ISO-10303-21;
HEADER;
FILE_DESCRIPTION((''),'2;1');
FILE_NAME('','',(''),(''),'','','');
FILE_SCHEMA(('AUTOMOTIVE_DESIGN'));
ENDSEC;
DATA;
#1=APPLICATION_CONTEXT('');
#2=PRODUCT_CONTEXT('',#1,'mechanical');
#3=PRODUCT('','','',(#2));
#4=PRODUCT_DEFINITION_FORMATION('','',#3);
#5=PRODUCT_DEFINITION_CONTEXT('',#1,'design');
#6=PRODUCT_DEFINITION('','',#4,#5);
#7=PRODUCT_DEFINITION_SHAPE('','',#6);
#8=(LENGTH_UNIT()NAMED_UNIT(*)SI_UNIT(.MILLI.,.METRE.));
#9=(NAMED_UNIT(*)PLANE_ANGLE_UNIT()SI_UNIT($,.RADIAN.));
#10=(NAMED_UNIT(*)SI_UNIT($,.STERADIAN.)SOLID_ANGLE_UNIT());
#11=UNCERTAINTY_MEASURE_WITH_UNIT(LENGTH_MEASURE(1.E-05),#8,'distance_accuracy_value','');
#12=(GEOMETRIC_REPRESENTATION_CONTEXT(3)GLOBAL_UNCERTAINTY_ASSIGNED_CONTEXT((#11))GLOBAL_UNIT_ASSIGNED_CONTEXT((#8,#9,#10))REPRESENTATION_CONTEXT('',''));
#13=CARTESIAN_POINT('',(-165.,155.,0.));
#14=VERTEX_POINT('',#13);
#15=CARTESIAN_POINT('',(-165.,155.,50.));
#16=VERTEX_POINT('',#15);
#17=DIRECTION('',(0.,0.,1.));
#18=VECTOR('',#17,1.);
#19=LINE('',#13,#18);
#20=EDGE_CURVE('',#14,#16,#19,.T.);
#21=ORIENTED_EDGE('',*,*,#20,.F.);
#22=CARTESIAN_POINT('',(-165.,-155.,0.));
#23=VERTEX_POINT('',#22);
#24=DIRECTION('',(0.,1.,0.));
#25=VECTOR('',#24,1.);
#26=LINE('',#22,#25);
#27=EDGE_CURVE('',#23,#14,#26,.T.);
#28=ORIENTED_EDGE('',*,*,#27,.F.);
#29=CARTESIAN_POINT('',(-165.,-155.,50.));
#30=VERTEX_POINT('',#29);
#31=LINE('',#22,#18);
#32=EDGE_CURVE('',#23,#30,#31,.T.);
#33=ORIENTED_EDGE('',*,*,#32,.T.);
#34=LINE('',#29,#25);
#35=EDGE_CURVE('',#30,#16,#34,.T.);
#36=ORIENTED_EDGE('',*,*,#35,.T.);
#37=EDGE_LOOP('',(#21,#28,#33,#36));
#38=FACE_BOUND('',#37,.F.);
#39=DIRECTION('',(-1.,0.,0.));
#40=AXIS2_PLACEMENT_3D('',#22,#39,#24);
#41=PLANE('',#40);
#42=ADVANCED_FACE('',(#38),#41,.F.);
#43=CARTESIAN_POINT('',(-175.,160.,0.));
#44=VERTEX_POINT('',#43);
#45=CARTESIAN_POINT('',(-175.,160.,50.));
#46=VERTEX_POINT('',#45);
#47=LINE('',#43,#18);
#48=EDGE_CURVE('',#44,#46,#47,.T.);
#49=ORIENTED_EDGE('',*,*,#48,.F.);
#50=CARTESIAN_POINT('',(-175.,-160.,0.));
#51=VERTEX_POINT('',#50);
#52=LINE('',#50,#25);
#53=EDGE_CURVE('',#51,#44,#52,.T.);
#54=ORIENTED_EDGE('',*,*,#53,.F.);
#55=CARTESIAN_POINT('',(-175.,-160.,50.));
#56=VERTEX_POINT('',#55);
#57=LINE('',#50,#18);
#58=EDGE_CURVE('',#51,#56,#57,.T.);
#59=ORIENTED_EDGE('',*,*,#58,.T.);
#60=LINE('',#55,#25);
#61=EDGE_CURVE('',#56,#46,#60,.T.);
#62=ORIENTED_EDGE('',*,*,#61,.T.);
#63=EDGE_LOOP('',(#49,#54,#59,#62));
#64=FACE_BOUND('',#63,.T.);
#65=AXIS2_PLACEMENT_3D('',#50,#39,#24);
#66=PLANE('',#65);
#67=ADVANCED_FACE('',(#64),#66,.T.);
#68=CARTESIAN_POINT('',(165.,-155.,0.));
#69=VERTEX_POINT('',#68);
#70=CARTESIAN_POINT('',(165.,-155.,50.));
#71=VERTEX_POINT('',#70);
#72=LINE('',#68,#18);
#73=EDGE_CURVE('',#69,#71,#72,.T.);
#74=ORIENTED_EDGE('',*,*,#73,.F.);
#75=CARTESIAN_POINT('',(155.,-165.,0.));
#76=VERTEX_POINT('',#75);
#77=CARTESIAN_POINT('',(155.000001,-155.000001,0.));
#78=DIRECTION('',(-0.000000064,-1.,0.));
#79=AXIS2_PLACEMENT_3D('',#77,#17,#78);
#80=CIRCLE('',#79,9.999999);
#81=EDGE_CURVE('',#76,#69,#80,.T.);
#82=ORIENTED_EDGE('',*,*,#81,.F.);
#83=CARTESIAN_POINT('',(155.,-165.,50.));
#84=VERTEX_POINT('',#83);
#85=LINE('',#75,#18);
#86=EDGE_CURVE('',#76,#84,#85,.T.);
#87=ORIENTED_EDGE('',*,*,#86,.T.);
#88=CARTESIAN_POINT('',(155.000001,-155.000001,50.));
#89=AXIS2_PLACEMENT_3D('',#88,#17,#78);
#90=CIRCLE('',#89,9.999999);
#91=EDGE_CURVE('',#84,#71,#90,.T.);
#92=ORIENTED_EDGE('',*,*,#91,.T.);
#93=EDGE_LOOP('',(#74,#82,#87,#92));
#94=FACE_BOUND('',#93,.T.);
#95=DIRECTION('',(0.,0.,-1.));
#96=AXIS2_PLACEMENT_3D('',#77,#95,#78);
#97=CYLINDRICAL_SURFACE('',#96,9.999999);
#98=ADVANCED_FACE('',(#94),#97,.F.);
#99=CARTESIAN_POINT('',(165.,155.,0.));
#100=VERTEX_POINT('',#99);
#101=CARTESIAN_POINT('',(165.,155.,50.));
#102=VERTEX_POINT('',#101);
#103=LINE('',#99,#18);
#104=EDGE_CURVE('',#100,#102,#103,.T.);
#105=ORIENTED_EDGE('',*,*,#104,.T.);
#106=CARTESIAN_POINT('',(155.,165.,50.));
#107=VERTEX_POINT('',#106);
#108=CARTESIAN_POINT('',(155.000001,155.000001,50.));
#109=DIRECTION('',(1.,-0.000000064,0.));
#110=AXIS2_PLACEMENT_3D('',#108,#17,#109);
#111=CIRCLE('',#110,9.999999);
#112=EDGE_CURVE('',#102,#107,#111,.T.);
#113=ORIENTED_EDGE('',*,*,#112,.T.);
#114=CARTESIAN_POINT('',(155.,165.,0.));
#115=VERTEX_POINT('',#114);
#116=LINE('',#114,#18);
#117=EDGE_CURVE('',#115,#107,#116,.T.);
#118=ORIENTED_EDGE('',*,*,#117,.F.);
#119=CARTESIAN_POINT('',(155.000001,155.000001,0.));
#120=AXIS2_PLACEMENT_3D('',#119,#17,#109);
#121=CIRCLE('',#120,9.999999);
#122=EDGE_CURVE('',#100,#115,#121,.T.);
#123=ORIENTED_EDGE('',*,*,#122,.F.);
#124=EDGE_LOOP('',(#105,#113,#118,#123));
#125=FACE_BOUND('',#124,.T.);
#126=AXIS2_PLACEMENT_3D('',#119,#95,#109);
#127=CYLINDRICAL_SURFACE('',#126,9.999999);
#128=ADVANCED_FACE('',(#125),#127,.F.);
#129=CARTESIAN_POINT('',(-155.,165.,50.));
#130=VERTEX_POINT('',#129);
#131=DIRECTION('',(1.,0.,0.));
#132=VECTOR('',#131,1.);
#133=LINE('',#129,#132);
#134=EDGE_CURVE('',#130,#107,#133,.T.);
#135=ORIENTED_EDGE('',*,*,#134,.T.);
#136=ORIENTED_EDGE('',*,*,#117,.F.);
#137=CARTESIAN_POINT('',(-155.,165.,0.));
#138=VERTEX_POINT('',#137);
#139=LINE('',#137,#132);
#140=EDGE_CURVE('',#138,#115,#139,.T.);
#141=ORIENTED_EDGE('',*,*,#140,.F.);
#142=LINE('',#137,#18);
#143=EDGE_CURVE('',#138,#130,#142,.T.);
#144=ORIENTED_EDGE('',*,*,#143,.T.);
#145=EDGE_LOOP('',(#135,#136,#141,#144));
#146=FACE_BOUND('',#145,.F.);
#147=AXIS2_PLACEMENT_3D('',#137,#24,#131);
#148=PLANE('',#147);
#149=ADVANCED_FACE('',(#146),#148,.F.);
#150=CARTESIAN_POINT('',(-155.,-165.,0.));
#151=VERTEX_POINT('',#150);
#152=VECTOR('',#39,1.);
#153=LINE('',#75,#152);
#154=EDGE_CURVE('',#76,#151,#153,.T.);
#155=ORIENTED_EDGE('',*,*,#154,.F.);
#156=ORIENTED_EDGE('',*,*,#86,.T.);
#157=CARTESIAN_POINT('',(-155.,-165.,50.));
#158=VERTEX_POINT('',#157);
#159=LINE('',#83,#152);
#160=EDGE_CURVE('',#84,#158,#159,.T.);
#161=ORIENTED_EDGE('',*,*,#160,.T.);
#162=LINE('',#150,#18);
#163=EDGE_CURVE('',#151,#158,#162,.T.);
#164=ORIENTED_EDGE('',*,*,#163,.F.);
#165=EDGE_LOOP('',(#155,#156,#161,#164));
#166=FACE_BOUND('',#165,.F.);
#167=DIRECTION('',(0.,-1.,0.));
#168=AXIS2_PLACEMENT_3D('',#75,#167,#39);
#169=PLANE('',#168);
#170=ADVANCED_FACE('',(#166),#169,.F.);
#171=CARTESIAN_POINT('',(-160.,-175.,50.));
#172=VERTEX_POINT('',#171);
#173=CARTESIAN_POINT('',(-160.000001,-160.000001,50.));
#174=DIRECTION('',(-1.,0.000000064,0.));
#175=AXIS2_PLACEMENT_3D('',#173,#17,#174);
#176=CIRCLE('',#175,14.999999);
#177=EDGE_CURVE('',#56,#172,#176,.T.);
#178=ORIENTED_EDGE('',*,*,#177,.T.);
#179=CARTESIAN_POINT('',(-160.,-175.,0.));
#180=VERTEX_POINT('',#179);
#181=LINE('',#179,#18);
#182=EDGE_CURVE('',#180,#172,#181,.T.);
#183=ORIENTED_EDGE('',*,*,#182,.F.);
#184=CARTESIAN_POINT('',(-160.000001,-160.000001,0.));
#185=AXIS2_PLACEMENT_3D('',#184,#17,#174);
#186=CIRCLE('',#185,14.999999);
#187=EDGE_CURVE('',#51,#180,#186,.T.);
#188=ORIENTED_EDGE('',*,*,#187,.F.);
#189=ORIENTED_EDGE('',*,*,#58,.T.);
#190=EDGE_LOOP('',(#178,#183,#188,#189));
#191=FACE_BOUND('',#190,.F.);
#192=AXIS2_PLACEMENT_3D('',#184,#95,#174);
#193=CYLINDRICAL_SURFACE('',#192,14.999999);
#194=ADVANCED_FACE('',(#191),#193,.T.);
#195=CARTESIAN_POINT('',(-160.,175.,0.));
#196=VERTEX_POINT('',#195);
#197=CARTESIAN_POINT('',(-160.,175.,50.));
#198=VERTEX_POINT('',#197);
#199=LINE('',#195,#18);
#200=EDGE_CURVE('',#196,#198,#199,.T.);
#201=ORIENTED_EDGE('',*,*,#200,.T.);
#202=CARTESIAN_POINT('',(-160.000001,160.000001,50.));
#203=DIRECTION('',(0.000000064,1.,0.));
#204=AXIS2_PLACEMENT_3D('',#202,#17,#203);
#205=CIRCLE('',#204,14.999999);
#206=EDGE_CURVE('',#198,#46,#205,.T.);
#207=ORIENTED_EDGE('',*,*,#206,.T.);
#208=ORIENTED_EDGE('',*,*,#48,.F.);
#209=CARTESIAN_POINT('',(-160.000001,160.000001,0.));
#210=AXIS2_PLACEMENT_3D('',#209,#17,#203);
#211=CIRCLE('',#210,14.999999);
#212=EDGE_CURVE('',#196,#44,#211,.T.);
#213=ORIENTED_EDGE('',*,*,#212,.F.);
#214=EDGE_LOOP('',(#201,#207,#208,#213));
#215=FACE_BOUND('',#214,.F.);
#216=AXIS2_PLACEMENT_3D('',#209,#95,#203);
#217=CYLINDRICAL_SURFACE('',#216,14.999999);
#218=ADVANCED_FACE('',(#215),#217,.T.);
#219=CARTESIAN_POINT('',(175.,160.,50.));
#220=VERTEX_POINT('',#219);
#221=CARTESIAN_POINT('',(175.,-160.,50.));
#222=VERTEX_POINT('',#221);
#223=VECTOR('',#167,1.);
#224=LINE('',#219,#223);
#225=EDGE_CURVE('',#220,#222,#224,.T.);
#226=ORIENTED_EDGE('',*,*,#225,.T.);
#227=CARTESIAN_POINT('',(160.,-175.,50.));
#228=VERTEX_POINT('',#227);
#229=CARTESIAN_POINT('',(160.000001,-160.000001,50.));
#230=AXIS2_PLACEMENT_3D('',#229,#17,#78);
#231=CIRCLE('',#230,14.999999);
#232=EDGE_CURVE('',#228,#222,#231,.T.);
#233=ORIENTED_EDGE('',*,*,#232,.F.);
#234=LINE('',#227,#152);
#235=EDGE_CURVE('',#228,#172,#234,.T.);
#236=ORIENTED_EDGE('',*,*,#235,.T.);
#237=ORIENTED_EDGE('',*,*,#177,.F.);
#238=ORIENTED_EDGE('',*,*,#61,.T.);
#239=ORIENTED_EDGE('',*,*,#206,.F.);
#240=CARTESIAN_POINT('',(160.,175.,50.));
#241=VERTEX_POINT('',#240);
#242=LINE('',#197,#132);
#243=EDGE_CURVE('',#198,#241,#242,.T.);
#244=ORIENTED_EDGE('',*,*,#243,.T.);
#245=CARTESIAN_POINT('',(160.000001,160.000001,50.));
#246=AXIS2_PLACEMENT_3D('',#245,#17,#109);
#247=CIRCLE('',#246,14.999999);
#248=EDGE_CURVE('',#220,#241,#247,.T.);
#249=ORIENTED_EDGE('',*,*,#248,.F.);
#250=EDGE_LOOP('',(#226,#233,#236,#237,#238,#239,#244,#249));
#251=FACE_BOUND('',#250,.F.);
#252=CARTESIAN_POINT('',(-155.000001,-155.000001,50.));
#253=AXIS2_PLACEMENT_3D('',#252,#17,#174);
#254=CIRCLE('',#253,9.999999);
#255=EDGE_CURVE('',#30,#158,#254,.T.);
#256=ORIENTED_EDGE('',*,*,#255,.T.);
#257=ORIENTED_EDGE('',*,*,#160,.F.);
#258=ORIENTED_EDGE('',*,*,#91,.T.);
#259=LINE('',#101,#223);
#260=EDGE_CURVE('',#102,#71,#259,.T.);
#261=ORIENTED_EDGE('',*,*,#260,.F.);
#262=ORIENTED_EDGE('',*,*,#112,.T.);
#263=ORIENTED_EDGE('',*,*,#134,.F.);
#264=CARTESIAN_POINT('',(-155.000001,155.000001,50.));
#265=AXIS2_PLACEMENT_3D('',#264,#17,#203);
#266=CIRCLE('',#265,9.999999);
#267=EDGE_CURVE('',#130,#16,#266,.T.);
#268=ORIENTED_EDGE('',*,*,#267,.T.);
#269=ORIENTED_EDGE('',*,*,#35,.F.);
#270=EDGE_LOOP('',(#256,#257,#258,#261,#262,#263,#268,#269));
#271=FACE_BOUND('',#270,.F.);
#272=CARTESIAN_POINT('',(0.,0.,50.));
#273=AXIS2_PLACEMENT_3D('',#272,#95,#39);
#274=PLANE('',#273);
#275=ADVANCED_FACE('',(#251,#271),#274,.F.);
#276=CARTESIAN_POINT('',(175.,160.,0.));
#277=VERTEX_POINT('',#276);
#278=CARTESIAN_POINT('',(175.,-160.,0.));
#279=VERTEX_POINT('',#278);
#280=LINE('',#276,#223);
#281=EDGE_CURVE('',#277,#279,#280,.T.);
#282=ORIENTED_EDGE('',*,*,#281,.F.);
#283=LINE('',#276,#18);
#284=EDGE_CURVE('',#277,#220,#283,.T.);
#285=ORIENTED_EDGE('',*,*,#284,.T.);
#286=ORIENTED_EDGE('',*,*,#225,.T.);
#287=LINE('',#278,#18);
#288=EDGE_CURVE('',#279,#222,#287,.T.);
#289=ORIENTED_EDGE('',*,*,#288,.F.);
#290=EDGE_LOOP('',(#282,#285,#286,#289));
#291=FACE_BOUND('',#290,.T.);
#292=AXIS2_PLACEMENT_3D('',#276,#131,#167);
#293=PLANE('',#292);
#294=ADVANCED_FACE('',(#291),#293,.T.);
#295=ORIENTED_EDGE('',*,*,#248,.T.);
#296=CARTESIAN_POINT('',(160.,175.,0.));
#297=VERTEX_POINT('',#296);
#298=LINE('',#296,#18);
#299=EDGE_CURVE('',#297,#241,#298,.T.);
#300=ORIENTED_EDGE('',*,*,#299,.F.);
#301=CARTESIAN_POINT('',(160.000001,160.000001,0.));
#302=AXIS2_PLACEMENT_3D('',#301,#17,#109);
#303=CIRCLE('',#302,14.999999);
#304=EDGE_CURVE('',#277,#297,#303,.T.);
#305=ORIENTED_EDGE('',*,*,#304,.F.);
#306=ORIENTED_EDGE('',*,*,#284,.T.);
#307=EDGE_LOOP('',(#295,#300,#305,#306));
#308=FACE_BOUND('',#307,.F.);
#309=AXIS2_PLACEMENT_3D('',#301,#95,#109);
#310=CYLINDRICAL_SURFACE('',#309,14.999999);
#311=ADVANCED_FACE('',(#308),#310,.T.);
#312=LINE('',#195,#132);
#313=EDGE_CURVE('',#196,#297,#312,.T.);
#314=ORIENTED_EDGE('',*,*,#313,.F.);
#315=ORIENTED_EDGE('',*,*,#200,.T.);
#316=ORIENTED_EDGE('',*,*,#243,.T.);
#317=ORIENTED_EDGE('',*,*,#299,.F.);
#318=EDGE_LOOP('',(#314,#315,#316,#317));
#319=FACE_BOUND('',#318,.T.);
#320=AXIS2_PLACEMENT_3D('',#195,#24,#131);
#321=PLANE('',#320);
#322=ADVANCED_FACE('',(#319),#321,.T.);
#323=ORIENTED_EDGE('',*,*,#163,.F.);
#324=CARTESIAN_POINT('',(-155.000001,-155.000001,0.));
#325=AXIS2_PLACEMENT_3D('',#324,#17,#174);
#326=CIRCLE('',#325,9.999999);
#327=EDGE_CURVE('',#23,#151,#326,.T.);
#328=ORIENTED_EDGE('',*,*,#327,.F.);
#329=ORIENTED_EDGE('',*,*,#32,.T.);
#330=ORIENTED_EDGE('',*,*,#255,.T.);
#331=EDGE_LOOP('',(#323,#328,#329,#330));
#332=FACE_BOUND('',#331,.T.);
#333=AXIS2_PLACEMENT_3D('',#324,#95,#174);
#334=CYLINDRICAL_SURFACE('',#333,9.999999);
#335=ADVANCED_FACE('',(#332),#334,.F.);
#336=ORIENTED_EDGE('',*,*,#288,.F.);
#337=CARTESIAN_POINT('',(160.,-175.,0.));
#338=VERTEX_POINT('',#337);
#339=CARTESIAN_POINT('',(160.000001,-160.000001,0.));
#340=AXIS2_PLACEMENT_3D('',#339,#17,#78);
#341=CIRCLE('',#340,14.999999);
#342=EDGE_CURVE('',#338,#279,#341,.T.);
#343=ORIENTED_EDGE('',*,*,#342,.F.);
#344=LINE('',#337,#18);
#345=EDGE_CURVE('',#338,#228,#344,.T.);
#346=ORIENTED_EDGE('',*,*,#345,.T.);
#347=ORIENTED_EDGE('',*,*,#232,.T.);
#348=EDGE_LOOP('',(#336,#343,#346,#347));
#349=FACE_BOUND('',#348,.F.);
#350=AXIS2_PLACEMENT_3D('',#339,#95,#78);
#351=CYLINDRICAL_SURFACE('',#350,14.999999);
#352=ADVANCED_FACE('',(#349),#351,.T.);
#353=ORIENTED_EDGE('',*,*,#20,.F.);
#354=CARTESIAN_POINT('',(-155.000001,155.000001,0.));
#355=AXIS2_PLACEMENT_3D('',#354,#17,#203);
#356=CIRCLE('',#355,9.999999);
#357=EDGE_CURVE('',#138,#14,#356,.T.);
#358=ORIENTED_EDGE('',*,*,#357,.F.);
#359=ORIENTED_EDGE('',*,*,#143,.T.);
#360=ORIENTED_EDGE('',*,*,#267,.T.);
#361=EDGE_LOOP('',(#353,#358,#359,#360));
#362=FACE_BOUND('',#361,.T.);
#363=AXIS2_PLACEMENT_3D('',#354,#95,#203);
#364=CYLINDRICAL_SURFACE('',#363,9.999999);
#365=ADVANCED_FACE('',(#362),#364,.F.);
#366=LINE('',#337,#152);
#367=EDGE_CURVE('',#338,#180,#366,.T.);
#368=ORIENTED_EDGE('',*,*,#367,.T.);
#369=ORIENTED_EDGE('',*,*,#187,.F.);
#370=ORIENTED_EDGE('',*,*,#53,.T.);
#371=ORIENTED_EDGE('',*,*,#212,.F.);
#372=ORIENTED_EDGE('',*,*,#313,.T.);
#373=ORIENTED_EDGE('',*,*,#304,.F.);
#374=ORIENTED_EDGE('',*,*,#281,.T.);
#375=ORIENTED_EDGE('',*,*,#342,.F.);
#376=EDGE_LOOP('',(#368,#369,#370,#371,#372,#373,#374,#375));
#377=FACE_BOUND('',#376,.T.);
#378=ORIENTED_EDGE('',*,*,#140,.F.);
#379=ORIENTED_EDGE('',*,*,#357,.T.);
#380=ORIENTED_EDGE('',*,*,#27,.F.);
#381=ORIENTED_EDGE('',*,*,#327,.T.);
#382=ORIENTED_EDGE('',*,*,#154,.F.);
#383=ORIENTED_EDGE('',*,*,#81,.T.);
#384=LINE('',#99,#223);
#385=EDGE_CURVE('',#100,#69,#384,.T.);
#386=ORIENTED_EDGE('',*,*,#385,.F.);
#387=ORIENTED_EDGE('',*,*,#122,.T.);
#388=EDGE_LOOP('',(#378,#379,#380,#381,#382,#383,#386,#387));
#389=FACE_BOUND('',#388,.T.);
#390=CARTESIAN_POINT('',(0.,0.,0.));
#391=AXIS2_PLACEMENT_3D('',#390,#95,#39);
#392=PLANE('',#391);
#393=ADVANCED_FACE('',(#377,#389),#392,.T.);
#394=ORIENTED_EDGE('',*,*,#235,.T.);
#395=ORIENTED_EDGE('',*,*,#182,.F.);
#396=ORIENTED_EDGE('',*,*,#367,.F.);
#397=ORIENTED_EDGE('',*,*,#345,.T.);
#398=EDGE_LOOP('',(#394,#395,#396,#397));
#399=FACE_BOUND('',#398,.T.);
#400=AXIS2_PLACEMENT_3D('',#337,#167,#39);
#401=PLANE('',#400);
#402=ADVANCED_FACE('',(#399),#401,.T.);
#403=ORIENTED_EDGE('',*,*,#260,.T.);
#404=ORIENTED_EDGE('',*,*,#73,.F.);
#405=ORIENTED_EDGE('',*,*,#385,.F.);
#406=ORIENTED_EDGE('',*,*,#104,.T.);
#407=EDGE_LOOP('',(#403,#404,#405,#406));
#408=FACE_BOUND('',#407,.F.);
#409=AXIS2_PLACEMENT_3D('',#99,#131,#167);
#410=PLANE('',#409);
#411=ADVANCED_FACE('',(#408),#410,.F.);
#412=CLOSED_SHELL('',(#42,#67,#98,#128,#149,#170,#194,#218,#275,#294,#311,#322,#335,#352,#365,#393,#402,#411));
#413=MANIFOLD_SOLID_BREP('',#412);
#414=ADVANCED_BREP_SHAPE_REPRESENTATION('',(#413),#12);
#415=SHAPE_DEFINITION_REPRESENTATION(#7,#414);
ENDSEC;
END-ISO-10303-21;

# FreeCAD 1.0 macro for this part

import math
import FreeCAD as App
import Part
import Sketcher

V = App.Vector

doc = App.newDocument("Part")
params = doc.addObject("Spreadsheet::Sheet", "Params")
for row, (alias, value) in enumerate([
    ("sketch1_radius", "14.999999 mm"),
    ("sketch1_radius2", "9.999999 mm"),
    ("sketch1_width", "320 mm"),
    ("sketch1_width2", "310 mm"),
    ("pad1_length", "50 mm"),
], start=1):
    params.set(f"A{row}", alias)
    params.set(f"B{row}", "=" + value)
    params.setAlias(f"B{row}", alias)

body = doc.addObject("PartDesign::Body", "Body")

# Sketch on XY plane
sketch1 = body.newObject("Sketcher::SketchObject", "Sketch")
sketch1.AttachmentSupport = (doc.getObject("XY_Plane"), [""])
sketch1.MapMode = "FlatFace"
sketch1.addGeometry(Part.LineSegment(V(160, 175, 0), V(-160, 175, 0)), False)
sketch1.addGeometry(Part.ArcOfCircle(Part.Circle(V(-160.000001, 160.000001, 0), V(0, 0, 1), 14.999999), math.radians(89.999996), math.radians(180.000004)), False)
sketch1.addGeometry(Part.LineSegment(V(-175, 160, 0), V(-175, -160, 0)), False)
sketch1.addGeometry(Part.ArcOfCircle(Part.Circle(V(-160.000001, -160.000001, 0), V(0, 0, 1), 14.999999), math.radians(179.999996), math.radians(270.000004)), False)
sketch1.addGeometry(Part.LineSegment(V(-160, -175, 0), V(160, -175, 0)), False)
sketch1.addGeometry(Part.ArcOfCircle(Part.Circle(V(160.000001, -160.000001, 0), V(0, 0, 1), 14.999999), math.radians(-90.000004), math.radians(0.000004)), False)
sketch1.addGeometry(Part.LineSegment(V(175, -160, 0), V(175, 160, 0)), False)
sketch1.addGeometry(Part.ArcOfCircle(Part.Circle(V(160.000001, 160.000001, 0), V(0, 0, 1), 14.999999), math.radians(-0.000004), math.radians(90.000004)), False)
sketch1.addGeometry(Part.LineSegment(V(-155, 165, 0), V(155, 165, 0)), False)
sketch1.addGeometry(Part.ArcOfCircle(Part.Circle(V(155.000001, 155.000001, 0), V(0, 0, 1), 9.999999), math.radians(-0.000004), math.radians(90.000004)), False)
sketch1.addGeometry(Part.LineSegment(V(165, 155, 0), V(165, -155, 0)), False)
sketch1.addGeometry(Part.ArcOfCircle(Part.Circle(V(155.000001, -155.000001, 0), V(0, 0, 1), 9.999999), math.radians(-90.000004), math.radians(0.000004)), False)
sketch1.addGeometry(Part.LineSegment(V(155, -165, 0), V(-155, -165, 0)), False)
sketch1.addGeometry(Part.ArcOfCircle(Part.Circle(V(-155.000001, -155.000001, 0), V(0, 0, 1), 9.999999), math.radians(179.999996), math.radians(270.000004)), False)
sketch1.addGeometry(Part.LineSegment(V(-165, -155, 0), V(-165, 155, 0)), False)
sketch1.addGeometry(Part.ArcOfCircle(Part.Circle(V(-155.000001, 155.000001, 0), V(0, 0, 1), 9.999999), math.radians(89.999996), math.radians(180.000004)), False)
sketch1.addConstraint(Sketcher.Constraint("Tangent", 0, 2, 1, 1))
sketch1.addConstraint(Sketcher.Constraint("Tangent", 1, 2, 2, 1))
sketch1.addConstraint(Sketcher.Constraint("Tangent", 2, 2, 3, 1))
sketch1.addConstraint(Sketcher.Constraint("Tangent", 3, 2, 4, 1))
sketch1.addConstraint(Sketcher.Constraint("Tangent", 4, 2, 5, 1))
sketch1.addConstraint(Sketcher.Constraint("Tangent", 5, 2, 6, 1))
sketch1.addConstraint(Sketcher.Constraint("Tangent", 6, 2, 7, 1))
sketch1.addConstraint(Sketcher.Constraint("Tangent", 7, 2, 0, 1))
sketch1.addConstraint(Sketcher.Constraint("Tangent", 8, 2, 9, 2))
sketch1.addConstraint(Sketcher.Constraint("Tangent", 9, 1, 10, 1))
sketch1.addConstraint(Sketcher.Constraint("Tangent", 10, 2, 11, 2))
sketch1.addConstraint(Sketcher.Constraint("Tangent", 11, 1, 12, 1))
sketch1.addConstraint(Sketcher.Constraint("Tangent", 12, 2, 13, 2))
sketch1.addConstraint(Sketcher.Constraint("Tangent", 13, 1, 14, 1))
sketch1.addConstraint(Sketcher.Constraint("Tangent", 14, 2, 15, 2))
sketch1.addConstraint(Sketcher.Constraint("Tangent", 15, 1, 8, 1))
sketch1.addConstraint(Sketcher.Constraint("Horizontal", 0))
sketch1.addConstraint(Sketcher.Constraint("Vertical", 2))
sketch1.addConstraint(Sketcher.Constraint("Horizontal", 4))
sketch1.addConstraint(Sketcher.Constraint("Vertical", 6))
sketch1.addConstraint(Sketcher.Constraint("Horizontal", 8))
sketch1.addConstraint(Sketcher.Constraint("Vertical", 10))
sketch1.addConstraint(Sketcher.Constraint("Horizontal", 12))
sketch1.addConstraint(Sketcher.Constraint("Vertical", 14))
sketch1.addConstraint(Sketcher.Constraint("Equal", 1, 3))
sketch1.addConstraint(Sketcher.Constraint("Equal", 3, 5))
sketch1.addConstraint(Sketcher.Constraint("Equal", 5, 7))
sketch1.addConstraint(Sketcher.Constraint("Equal", 9, 11))
sketch1.addConstraint(Sketcher.Constraint("Equal", 11, 13))
sketch1.addConstraint(Sketcher.Constraint("Equal", 13, 15))
sketch1.addConstraint(Sketcher.Constraint("Symmetric", 1, 3, 5, 3, -1, 1))
sketch1.addConstraint(Sketcher.Constraint("Symmetric", 9, 3, 13, 3, -1, 1))
sketch1.addConstraint(Sketcher.Constraint("Equal", 4, 2))
sketch1.addConstraint(Sketcher.Constraint("Equal", 12, 10))
sketch1.addConstraint(Sketcher.Constraint("Radius", 1, 14.999999))
sketch1.addConstraint(Sketcher.Constraint("Radius", 9, 9.999999))
sketch1.addConstraint(Sketcher.Constraint("DistanceX", 0, 2, 0, 1, 320.0))
sketch1.addConstraint(Sketcher.Constraint("DistanceX", 8, 1, 8, 2, 310.0))
sketch1.setExpression("Constraints[34]", "Params.sketch1_radius")
sketch1.setExpression("Constraints[35]", "Params.sketch1_radius2")
sketch1.setExpression("Constraints[36]", "Params.sketch1_width")
sketch1.setExpression("Constraints[37]", "Params.sketch1_width2")
pad1 = body.newObject("PartDesign::Pad", "Pad")
pad1.Profile = sketch1
pad1.setExpression("Length", "Params.pad1_length")

doc.recompute()
